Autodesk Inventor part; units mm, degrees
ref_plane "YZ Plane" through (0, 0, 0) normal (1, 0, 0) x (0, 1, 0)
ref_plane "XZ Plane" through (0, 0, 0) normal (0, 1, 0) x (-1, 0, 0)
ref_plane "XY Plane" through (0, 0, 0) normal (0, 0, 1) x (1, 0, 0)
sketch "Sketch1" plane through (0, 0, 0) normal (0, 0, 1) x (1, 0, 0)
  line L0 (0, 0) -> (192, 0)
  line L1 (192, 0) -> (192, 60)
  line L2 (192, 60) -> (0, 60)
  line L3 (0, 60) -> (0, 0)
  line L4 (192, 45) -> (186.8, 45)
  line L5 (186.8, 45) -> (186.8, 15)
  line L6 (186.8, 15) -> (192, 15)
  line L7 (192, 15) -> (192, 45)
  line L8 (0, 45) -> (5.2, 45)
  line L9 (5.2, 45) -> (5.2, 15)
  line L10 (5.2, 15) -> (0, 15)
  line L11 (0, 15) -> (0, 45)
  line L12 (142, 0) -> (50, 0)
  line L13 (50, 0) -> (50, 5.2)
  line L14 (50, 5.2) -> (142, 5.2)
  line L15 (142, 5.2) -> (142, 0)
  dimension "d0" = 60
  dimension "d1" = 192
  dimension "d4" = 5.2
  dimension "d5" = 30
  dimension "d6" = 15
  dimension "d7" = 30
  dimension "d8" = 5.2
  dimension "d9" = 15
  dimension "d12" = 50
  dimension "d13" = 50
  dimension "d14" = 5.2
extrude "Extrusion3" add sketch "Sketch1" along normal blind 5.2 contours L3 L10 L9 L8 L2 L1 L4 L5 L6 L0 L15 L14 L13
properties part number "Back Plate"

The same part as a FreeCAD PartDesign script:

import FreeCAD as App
import Part
import Sketcher
Q = App.Units.Quantity

doc = App.newDocument("Part")
params = doc.addObject("Spreadsheet::Sheet", "Params")
for row, (alias, value) in enumerate([
    ("sketch1_width", "50 mm"),
    ("sketch1_width2", "192 mm"),
    ("sketch1_height", "15 mm"),
    ("sketch1_height2", "30 mm"),
    ("sketch1_width3", "5.2 mm"),
    ("pad1_length", "5.2 mm"),
], start=1):
    params.set(f"A{row}", alias)
    params.set(f"B{row}", "=" + value)
    params.setAlias(f"B{row}", alias)

body = doc.addObject("PartDesign::Body", "Body")

sketch1 = doc.addObject("Sketcher::SketchObject", "Sketch")
body.addObject(sketch1)
sketch1.AttachmentSupport = (doc.XY_Plane, [""])
sketch1.MapMode = "FlatFace"
sketch1.addGeometry(Part.LineSegment(App.Vector(0, 15, 0), App.Vector(0, 0, 0)), False)
sketch1.addGeometry(Part.LineSegment(App.Vector(0, 0, 0), App.Vector(50, 0, 0)), False)
sketch1.addGeometry(Part.LineSegment(App.Vector(50, 0, 0), App.Vector(50, 5.2, 0)), False)
sketch1.addGeometry(Part.LineSegment(App.Vector(50, 5.2, 0), App.Vector(142, 5.2, 0)), False)
sketch1.addGeometry(Part.LineSegment(App.Vector(142, 5.2, 0), App.Vector(142, 0, 0)), False)
sketch1.addGeometry(Part.LineSegment(App.Vector(142, 0, 0), App.Vector(192, 0, 0)), False)
sketch1.addGeometry(Part.LineSegment(App.Vector(192, 0, 0), App.Vector(192, 15, 0)), False)
sketch1.addGeometry(Part.LineSegment(App.Vector(192, 15, 0), App.Vector(186.8, 15, 0)), False)
sketch1.addGeometry(Part.LineSegment(App.Vector(186.8, 15, 0), App.Vector(186.8, 45, 0)), False)
sketch1.addGeometry(Part.LineSegment(App.Vector(186.8, 45, 0), App.Vector(192, 45, 0)), False)
sketch1.addGeometry(Part.LineSegment(App.Vector(192, 45, 0), App.Vector(192, 60, 0)), False)
sketch1.addGeometry(Part.LineSegment(App.Vector(192, 60, 0), App.Vector(0, 60, 0)), False)
sketch1.addGeometry(Part.LineSegment(App.Vector(0, 60, 0), App.Vector(0, 45, 0)), False)
sketch1.addGeometry(Part.LineSegment(App.Vector(0, 45, 0), App.Vector(5.2, 45, 0)), False)
sketch1.addGeometry(Part.LineSegment(App.Vector(5.2, 45, 0), App.Vector(5.2, 15, 0)), False)
sketch1.addGeometry(Part.LineSegment(App.Vector(5.2, 15, 0), App.Vector(0, 15, 0)), False)
sketch1.addConstraint(Sketcher.Constraint("Coincident", 0, 2, 1, 1))
sketch1.addConstraint(Sketcher.Constraint("Coincident", 1, 2, 2, 1))
sketch1.addConstraint(Sketcher.Constraint("Coincident", 2, 2, 3, 1))
sketch1.addConstraint(Sketcher.Constraint("Coincident", 3, 2, 4, 1))
sketch1.addConstraint(Sketcher.Constraint("Coincident", 4, 2, 5, 1))
sketch1.addConstraint(Sketcher.Constraint("Coincident", 5, 2, 6, 1))
sketch1.addConstraint(Sketcher.Constraint("Coincident", 6, 2, 7, 1))
sketch1.addConstraint(Sketcher.Constraint("Coincident", 7, 2, 8, 1))
sketch1.addConstraint(Sketcher.Constraint("Coincident", 8, 2, 9, 1))
sketch1.addConstraint(Sketcher.Constraint("Coincident", 9, 2, 10, 1))
sketch1.addConstraint(Sketcher.Constraint("Coincident", 10, 2, 11, 1))
sketch1.addConstraint(Sketcher.Constraint("Coincident", 11, 2, 12, 1))
sketch1.addConstraint(Sketcher.Constraint("Coincident", 12, 2, 13, 1))
sketch1.addConstraint(Sketcher.Constraint("Coincident", 13, 2, 14, 1))
sketch1.addConstraint(Sketcher.Constraint("Coincident", 14, 2, 15, 1))
sketch1.addConstraint(Sketcher.Constraint("Coincident", 15, 2, 0, 1))
sketch1.addConstraint(Sketcher.Constraint("Vertical", 0))
sketch1.addConstraint(Sketcher.Constraint("Horizontal", 1))
sketch1.addConstraint(Sketcher.Constraint("Vertical", 2))
sketch1.addConstraint(Sketcher.Constraint("Horizontal", 3))
sketch1.addConstraint(Sketcher.Constraint("Vertical", 4))
sketch1.addConstraint(Sketcher.Constraint("Horizontal", 5))
sketch1.addConstraint(Sketcher.Constraint("Vertical", 6))
sketch1.addConstraint(Sketcher.Constraint("Horizontal", 7))
sketch1.addConstraint(Sketcher.Constraint("Vertical", 8))
sketch1.addConstraint(Sketcher.Constraint("Horizontal", 9))
sketch1.addConstraint(Sketcher.Constraint("Vertical", 10))
sketch1.addConstraint(Sketcher.Constraint("Horizontal", 11))
sketch1.addConstraint(Sketcher.Constraint("Vertical", 12))
sketch1.addConstraint(Sketcher.Constraint("Horizontal", 13))
sketch1.addConstraint(Sketcher.Constraint("Vertical", 14))
sketch1.addConstraint(Sketcher.Constraint("Horizontal", 15))
sketch1.addConstraint(Sketcher.Constraint("Coincident", 0, 2, -1, 1))
sketch1.addConstraint(Sketcher.Constraint("PointOnObject", 4, 2, -1))
sketch1.addConstraint(Sketcher.Constraint("PointOnObject", 11, 2, -2))
sketch1.addConstraint(Sketcher.Constraint("Horizontal", 9, 2, 12, 2))
sketch1.addConstraint(Sketcher.Constraint("Horizontal", 7, 2, 14, 2))
sketch1.addConstraint(Sketcher.Constraint("Vertical", 6, 2, 9, 2))
sketch1.addConstraint(Sketcher.Constraint("Equal", 1, 5))
sketch1.addConstraint(Sketcher.Constraint("Equal", 9, 13))
sketch1.addConstraint(Sketcher.Constraint("Equal", 15, 2))
sketch1.addConstraint(Sketcher.Constraint("Equal", 6, 10))
sketch1.addConstraint(Sketcher.Constraint("DistanceX", 1, 1, 1, 2, Q("50 mm")))
sketch1.addConstraint(Sketcher.Constraint("DistanceX", 11, 2, 11, 1, Q("192 mm")))
sketch1.addConstraint(Sketcher.Constraint("DistanceY", 0, 2, 0, 1, Q("15 mm")))
sketch1.addConstraint(Sketcher.Constraint("DistanceY", 8, 1, 8, 2, Q("30 mm")))
sketch1.addConstraint(Sketcher.Constraint("DistanceX", 7, 2, 7, 1, Q("5.2 mm")))
sketch1.setExpression("Constraints[42]", "Params.sketch1_width")
sketch1.setExpression("Constraints[43]", "Params.sketch1_width2")
sketch1.setExpression("Constraints[44]", "Params.sketch1_height")
sketch1.setExpression("Constraints[45]", "Params.sketch1_height2")
sketch1.setExpression("Constraints[46]", "Params.sketch1_width3")
pad1 = doc.addObject("PartDesign::Pad", "Pad")
body.addObject(pad1)
pad1.Profile = sketch1
pad1.setExpression("Length", "Params.pad1_length")

doc.recompute()
